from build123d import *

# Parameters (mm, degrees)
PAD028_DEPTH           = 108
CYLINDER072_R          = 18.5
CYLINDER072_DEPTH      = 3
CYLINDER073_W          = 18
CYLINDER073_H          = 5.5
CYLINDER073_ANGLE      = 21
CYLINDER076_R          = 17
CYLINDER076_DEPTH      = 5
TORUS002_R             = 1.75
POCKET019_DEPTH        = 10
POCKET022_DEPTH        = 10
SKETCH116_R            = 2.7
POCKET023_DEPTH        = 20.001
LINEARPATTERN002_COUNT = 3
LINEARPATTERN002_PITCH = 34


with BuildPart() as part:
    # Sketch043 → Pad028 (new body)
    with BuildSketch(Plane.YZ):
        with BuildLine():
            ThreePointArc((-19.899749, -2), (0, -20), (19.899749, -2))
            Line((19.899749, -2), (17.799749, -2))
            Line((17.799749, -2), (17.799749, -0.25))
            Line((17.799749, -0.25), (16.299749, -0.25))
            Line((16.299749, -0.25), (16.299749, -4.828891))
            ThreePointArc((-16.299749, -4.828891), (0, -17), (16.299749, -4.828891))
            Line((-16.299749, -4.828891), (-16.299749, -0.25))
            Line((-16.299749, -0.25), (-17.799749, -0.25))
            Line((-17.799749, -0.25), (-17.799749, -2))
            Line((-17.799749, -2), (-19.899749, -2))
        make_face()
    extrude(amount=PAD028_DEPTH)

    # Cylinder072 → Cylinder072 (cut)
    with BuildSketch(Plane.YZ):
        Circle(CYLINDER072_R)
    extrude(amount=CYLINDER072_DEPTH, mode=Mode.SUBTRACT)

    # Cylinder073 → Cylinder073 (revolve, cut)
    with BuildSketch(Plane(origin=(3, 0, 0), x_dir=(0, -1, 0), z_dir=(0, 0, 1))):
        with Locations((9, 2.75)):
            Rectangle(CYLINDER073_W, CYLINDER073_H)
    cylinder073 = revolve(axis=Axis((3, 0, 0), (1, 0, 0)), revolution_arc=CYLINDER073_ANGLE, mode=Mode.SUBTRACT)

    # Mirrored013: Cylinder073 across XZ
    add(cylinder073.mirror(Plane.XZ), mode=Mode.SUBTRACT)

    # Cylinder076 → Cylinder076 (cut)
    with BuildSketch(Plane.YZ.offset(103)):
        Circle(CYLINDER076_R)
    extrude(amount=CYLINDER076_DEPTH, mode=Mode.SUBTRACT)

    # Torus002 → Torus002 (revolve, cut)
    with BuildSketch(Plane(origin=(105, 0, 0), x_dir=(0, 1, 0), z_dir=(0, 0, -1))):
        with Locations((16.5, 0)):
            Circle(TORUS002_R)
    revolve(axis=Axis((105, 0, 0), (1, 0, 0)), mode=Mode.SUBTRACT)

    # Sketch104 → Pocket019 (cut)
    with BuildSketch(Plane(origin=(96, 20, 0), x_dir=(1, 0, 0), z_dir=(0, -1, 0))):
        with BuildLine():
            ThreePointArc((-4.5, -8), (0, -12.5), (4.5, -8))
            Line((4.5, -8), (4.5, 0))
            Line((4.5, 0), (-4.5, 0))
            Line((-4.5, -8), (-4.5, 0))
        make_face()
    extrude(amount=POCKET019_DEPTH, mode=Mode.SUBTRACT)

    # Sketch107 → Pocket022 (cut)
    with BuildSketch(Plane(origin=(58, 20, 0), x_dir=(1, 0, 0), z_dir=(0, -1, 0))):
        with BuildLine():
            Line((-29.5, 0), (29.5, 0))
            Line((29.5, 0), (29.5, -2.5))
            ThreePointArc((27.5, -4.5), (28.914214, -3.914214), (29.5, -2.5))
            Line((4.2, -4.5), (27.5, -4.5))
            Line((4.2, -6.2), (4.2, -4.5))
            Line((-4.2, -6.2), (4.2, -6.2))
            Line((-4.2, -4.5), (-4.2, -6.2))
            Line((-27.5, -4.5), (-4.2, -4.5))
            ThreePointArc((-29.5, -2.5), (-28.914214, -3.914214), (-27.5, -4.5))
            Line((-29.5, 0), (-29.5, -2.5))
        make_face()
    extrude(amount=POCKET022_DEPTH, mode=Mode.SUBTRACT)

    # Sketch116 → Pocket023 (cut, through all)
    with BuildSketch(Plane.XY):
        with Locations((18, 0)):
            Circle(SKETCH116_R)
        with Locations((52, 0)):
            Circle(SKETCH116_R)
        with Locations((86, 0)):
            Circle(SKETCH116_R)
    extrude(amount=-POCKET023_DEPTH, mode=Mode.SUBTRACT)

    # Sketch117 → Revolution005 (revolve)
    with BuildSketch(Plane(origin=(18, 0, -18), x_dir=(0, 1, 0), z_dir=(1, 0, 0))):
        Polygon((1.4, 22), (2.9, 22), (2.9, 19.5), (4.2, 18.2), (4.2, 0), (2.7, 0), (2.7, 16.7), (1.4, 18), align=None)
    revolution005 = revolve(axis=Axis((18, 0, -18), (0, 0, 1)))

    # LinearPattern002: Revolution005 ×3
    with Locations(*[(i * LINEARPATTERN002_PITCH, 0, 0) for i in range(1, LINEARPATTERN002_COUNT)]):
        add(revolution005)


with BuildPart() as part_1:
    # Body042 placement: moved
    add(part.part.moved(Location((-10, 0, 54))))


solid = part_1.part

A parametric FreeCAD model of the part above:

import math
import FreeCAD as App
import Part
import Sketcher
from FreeCAD import Vector
Q = App.Units.Quantity

doc = App.newDocument("Part")
body = doc.addObject("PartDesign::Body", "Body")

sketch1 = body.newObject("Sketcher::SketchObject", "Sketch")
sketch1.AttachmentSupport = (doc.getObject("YZ_Plane"), [""])
sketch1.MapMode = "FlatFace"
sketch1.addGeometry([
    Part.ArcOfCircle(Part.Circle(Vector(0, 0, 0), Vector(0, 0, 1), 20), math.radians(-174), math.radians(-6)),
    Part.LineSegment(Vector(19.9, -2, 0), Vector(17.8, -2, 0)),
    Part.LineSegment(Vector(17.8, -2, 0), Vector(17.8, -0.2, 0)),
    Part.LineSegment(Vector(17.8, -0.2, 0), Vector(16.3, -0.2, 0)),
    Part.LineSegment(Vector(16.3, -0.2, 0), Vector(16.3, -4.8, 0)),
    Part.ArcOfCircle(Part.Circle(Vector(0, 0, 0), Vector(0, 0, 1), 17), math.radians(-163), math.radians(-17)),
    Part.LineSegment(Vector(-16.3, -4.8, 0), Vector(-16.3, -0.2, 0)),
    Part.LineSegment(Vector(-16.3, -0.2, 0), Vector(-17.8, -0.2, 0)),
    Part.LineSegment(Vector(-17.8, -0.2, 0), Vector(-17.8, -2, 0)),
    Part.LineSegment(Vector(-17.8, -2, 0), Vector(-19.9, -2, 0)),
], False)
sketch1.addConstraint([
    Sketcher.Constraint("Coincident", 0, 2, 1, 1),
    Sketcher.Constraint("Coincident", 1, 2, 2, 1),
    Sketcher.Constraint("Coincident", 2, 2, 3, 1),
    Sketcher.Constraint("Coincident", 3, 2, 4, 1),
    Sketcher.Constraint("Coincident", 4, 2, 5, 2),
    Sketcher.Constraint("Coincident", 5, 1, 6, 1),
    Sketcher.Constraint("Coincident", 6, 2, 7, 1),
    Sketcher.Constraint("Coincident", 7, 2, 8, 1),
    Sketcher.Constraint("Coincident", 8, 2, 9, 1),
    Sketcher.Constraint("Coincident", 9, 2, 0, 1),
    Sketcher.Constraint("Horizontal", 1),
    Sketcher.Constraint("Vertical", 2),
    Sketcher.Constraint("Horizontal", 3),
    Sketcher.Constraint("Vertical", 4),
    Sketcher.Constraint("Vertical", 6),
    Sketcher.Constraint("Horizontal", 7),
    Sketcher.Constraint("Vertical", 8),
    Sketcher.Constraint("Horizontal", 9),
    Sketcher.Constraint("Coincident", 0, 3, -1, 1),
    Sketcher.Constraint("Coincident", 5, 3, -1, 1),
    Sketcher.Constraint("Symmetric", 3, 2, 6, 2, -2),
    Sketcher.Constraint("Symmetric", 1, 2, 8, 2, -2),
    Sketcher.Constraint("Radius", 0, Q("20 mm")),
    Sketcher.Constraint("Radius", 5, Q("17 mm")),
    Sketcher.Constraint("DistanceX", 1, 2, 1, 1, Q("2.1 mm")),
    Sketcher.Constraint("DistanceX", 3, 2, 3, 1, Q("1.5 mm")),
    Sketcher.Constraint("DistanceY", 0, 2, -1, 1, Q("2 mm")),
    Sketcher.Constraint("DistanceY", 2, 1, 2, 2, Q("1.75 mm")),
])
pad1 = body.newObject("PartDesign::Pad", "Pad")
pad1.Profile = sketch1
pad1.Length = 108

sketch2 = body.newObject("Sketcher::SketchObject", "Sketch001")
sketch2.AttachmentSupport = (doc.getObject("YZ_Plane"), [""])
sketch2.MapMode = "FlatFace"
sketch2.addGeometry(Part.Circle(Vector(0, 0, 0), Vector(0, 0, 1), 18), False)
sketch2.addConstraint([
    Sketcher.Constraint("Coincident", 0, 3, -1, 1),
    Sketcher.Constraint("Diameter", 0, Q("37 mm")),
])
pocket1 = body.newObject("PartDesign::Pocket", "Pocket")
pocket1.Profile = sketch2
pocket1.Length = 3
pocket1.Reversed = True

sketch3 = body.newObject("Sketcher::SketchObject", "Sketch002")
sketch3.AttachmentSupport = (doc.getObject("XY_Plane"), [""])
sketch3.MapMode = "FlatFace"
sketch3.addGeometry([
    Part.LineSegment(Vector(8, 0, 0), Vector(3, 0, 0)),
    Part.LineSegment(Vector(3, 0, 0), Vector(3, -18, 0)),
    Part.LineSegment(Vector(3, -18, 0), Vector(8, -18, 0)),
    Part.LineSegment(Vector(8, -18, 0), Vector(8, 0, 0)),
], False)
sketch3.addConstraint([
    Sketcher.Constraint("Coincident", 0, 2, 1, 1),
    Sketcher.Constraint("Coincident", 1, 2, 2, 1),
    Sketcher.Constraint("Coincident", 2, 2, 3, 1),
    Sketcher.Constraint("Coincident", 3, 2, 0, 1),
    Sketcher.Constraint("Horizontal", 0),
    Sketcher.Constraint("Vertical", 1),
    Sketcher.Constraint("Horizontal", 2),
    Sketcher.Constraint("Vertical", 3),
    Sketcher.Constraint("PointOnObject", 0, 2, -1),
    Sketcher.Constraint("DistanceY", 1, 2, 1, 1, Q("18 mm")),
    Sketcher.Constraint("DistanceX", 0, 2, 0, 1, Q("5.5 mm")),
    Sketcher.Constraint("DistanceX", -1, 1, 0, 2, Q("3 mm")),
])
groove = body.newObject("PartDesign::Groove", "Groove")
groove.Profile = sketch3
groove.ReferenceAxis = (sketch3, ["H_Axis"])
groove.Angle = 21
doc.recompute()

mirrored = body.newObject("PartDesign::Mirrored", "Mirrored")
mirrored.Originals = [groove]
mirrored.MirrorPlane = (doc.getObject("XZ_Plane"), [""])
body.Tip = mirrored

sketch4 = body.newObject("Sketcher::SketchObject", "Sketch003")
sketch4.AttachmentSupport = (doc.getObject("YZ_Plane"), [""])
sketch4.MapMode = "FlatFace"
sketch4.AttachmentOffset = App.Placement(Vector(0, 0, 103), App.Rotation())
sketch4.addGeometry(Part.Circle(Vector(0, 0, 0), Vector(0, 0, 1), 17), False)
sketch4.addConstraint([
    Sketcher.Constraint("Coincident", 0, 3, -1, 1),
    Sketcher.Constraint("Diameter", 0, Q("34 mm")),
])
pocket2 = body.newObject("PartDesign::Pocket", "Pocket001")
pocket2.Profile = sketch4
pocket2.Length = 5
pocket2.Reversed = True

sketch5 = body.newObject("Sketcher::SketchObject", "Sketch004")
sketch5.AttachmentSupport = (doc.getObject("XY_Plane"), [""])
sketch5.MapMode = "FlatFace"
sketch5.addGeometry(Part.Circle(Vector(105, 16.5, 0), Vector(0, 0, 1), 1.8), False)
sketch5.addConstraint([
    Sketcher.Constraint("Diameter", 0, Q("3.5 mm")),
    Sketcher.Constraint("DistanceX", -1, 1, 0, 3, Q("105 mm")),
    Sketcher.Constraint("DistanceY", -1, 1, 0, 3, Q("16.5 mm")),
])
groove2 = body.newObject("PartDesign::Groove", "Groove001")
groove2.Profile = sketch5
groove2.ReferenceAxis = (sketch5, ["H_Axis"])
groove2.Angle = 360

sketch6 = body.newObject("Sketcher::SketchObject", "Sketch005")
sketch6.AttachmentSupport = (doc.getObject("XZ_Plane"), [""])
sketch6.MapMode = "FlatFace"
sketch6.AttachmentOffset = App.Placement(Vector(0, 0, -20), App.Rotation())
sketch6.addGeometry([
    Part.ArcOfCircle(Part.Circle(Vector(96, -8, 0), Vector(0, 0, 1), 4.5), math.radians(180), math.radians(360)),
    Part.LineSegment(Vector(100.5, -8, 0), Vector(100.5, 0, 0)),
    Part.LineSegment(Vector(100.5, 0, 0), Vector(91.5, 0, 0)),
    Part.LineSegment(Vector(91.5, 0, 0), Vector(91.5, -8, 0)),
], False)
sketch6.addConstraint([
    Sketcher.Constraint("Tangent", 0, 2, 1, 1),
    Sketcher.Constraint("Coincident", 1, 2, 2, 1),
    Sketcher.Constraint("Coincident", 2, 2, 3, 1),
    Sketcher.Constraint("Tangent", 3, 2, 0, 1),
    Sketcher.Constraint("Vertical", 1),
    Sketcher.Constraint("Horizontal", 2),
    Sketcher.Constraint("Vertical", 3),
    Sketcher.Constraint("PointOnObject", 1, 2, -1),
    Sketcher.Constraint("Radius", 0, Q("4.5 mm")),
    Sketcher.Constraint("DistanceY", 1, 1, 1, 2, Q("8 mm")),
    Sketcher.Constraint("DistanceX", -1, 1, 0, 3, Q("96 mm")),
])
pocket3 = body.newObject("PartDesign::Pocket", "Pocket002")
pocket3.Profile = sketch6
pocket3.Length = 10
pocket3.Reversed = True

sketch7 = body.newObject("Sketcher::SketchObject", "Sketch006")
sketch7.AttachmentSupport = (doc.getObject("XZ_Plane"), [""])
sketch7.MapMode = "FlatFace"
sketch7.AttachmentOffset = App.Placement(Vector(0, 0, -20), App.Rotation())
sketch7.addGeometry([
    Part.LineSegment(Vector(87.5, 0, 0), Vector(28.5, 0, 0)),
    Part.LineSegment(Vector(28.5, 0, 0), Vector(28.5, -2.5, 0)),
    Part.ArcOfCircle(Part.Circle(Vector(30.5, -2.5, 0), Vector(0, 0, 1), 2), math.radians(180), math.radians(270)),
    Part.LineSegment(Vector(30.5, -4.5, 0), Vector(53.8, -4.5, 0)),
    Part.LineSegment(Vector(53.8, -4.5, 0), Vector(53.8, -6.2, 0)),
    Part.LineSegment(Vector(53.8, -6.2, 0), Vector(62.2, -6.2, 0)),
    Part.LineSegment(Vector(62.2, -6.2, 0), Vector(62.2, -4.5, 0)),
    Part.LineSegment(Vector(62.2, -4.5, 0), Vector(85.5, -4.5, 0)),
    Part.ArcOfCircle(Part.Circle(Vector(85.5, -2.5, 0), Vector(0, 0, 1), 2), math.radians(-90), math.radians(0)),
    Part.LineSegment(Vector(87.5, -2.5, 0), Vector(87.5, 0, 0)),
], False)
sketch7.addConstraint([
    Sketcher.Constraint("Coincident", 0, 2, 1, 1),
    Sketcher.Constraint("Tangent", 1, 2, 2, 1),
    Sketcher.Constraint("Tangent", 2, 2, 3, 1),
    Sketcher.Constraint("Coincident", 3, 2, 4, 1),
    Sketcher.Constraint("Coincident", 4, 2, 5, 1),
    Sketcher.Constraint("Coincident", 5, 2, 6, 1),
    Sketcher.Constraint("Coincident", 6, 2, 7, 1),
    Sketcher.Constraint("Tangent", 7, 2, 8, 1),
    Sketcher.Constraint("Tangent", 8, 2, 9, 1),
    Sketcher.Constraint("Coincident", 9, 2, 0, 1),
    Sketcher.Constraint("Horizontal", 0),
    Sketcher.Constraint("Vertical", 1),
    Sketcher.Constraint("Horizontal", 3),
    Sketcher.Constraint("Vertical", 4),
    Sketcher.Constraint("Horizontal", 5),
    Sketcher.Constraint("Vertical", 6),
    Sketcher.Constraint("Horizontal", 7),
    Sketcher.Constraint("Vertical", 9),
    Sketcher.Constraint("Equal", 2, 8),
    Sketcher.Constraint("PointOnObject", 0, 2, -1),
    Sketcher.Constraint("Horizontal", 2, 3, 8, 3),
    Sketcher.Constraint("Equal", 3, 7),
    Sketcher.Constraint("Radius", 2, Q("1.999999 mm")),
    Sketcher.Constraint("DistanceX", 0, 2, 0, 1, Q("59 mm")),
    Sketcher.Constraint("DistanceX", 3, 1, 3, 2, Q("23.3 mm")),
    Sketcher.Constraint("DistanceY", 1, 2, 1, 1, Q("2.5 mm")),
    Sketcher.Constraint("DistanceY", 4, 2, 4, 1, Q("1.7 mm")),
    Sketcher.Constraint("DistanceX", -1, 1, 2, 3, Q("30.499999 mm")),
])
pocket4 = body.newObject("PartDesign::Pocket", "Pocket003")
pocket4.Profile = sketch7
pocket4.Length = 10
pocket4.Reversed = True

sketch8 = body.newObject("Sketcher::SketchObject", "Sketch007")
sketch8.AttachmentSupport = (doc.getObject("XY_Plane"), [""])
sketch8.MapMode = "FlatFace"
sketch8.addGeometry([
    Part.Circle(Vector(18, 0, 0), Vector(0, 0, 1), 2.7),
    Part.Circle(Vector(52, 0, 0), Vector(0, 0, 1), 2.7),
    Part.Circle(Vector(86, 0, 0), Vector(0, 0, 1), 2.7),
], False)
sketch8.addConstraint([
    Sketcher.Constraint("Equal", 0, 1),
    Sketcher.Constraint("Equal", 1, 2),
    Sketcher.Constraint("PointOnObject", 0, 3, -1),
    Sketcher.Constraint("PointOnObject", 1, 3, -1),
    Sketcher.Constraint("PointOnObject", 2, 3, -1),
    Sketcher.Constraint("Diameter", 0, Q("5.4 mm")),
    Sketcher.Constraint("DistanceX", -1, 1, 0, 3, Q("18 mm")),
    Sketcher.Constraint("DistanceX", -1, 1, 1, 3, Q("52 mm")),
    Sketcher.Constraint("DistanceX", -1, 1, 2, 3, Q("86 mm")),
])
pocket5 = body.newObject("PartDesign::Pocket", "Pocket004")
pocket5.Profile = sketch8
pocket5.Type = "ThroughAll"

sketch9 = body.newObject("Sketcher::SketchObject", "Sketch008")
sketch9.AttachmentSupport = (doc.getObject("YZ_Plane"), [""])
sketch9.MapMode = "FlatFace"
sketch9.AttachmentOffset = App.Placement(Vector(0, 0, 18), App.Rotation())
sketch9.addGeometry([
    Part.LineSegment(Vector(2.9, 4, 0), Vector(1.4, 4, 0)),
    Part.LineSegment(Vector(1.4, 4, 0), Vector(1.4, 0, 0)),
    Part.LineSegment(Vector(1.4, 0, 0), Vector(2.7, -1.3, 0)),
    Part.LineSegment(Vector(2.7, -1.3, 0), Vector(2.7, -18, 0)),
    Part.LineSegment(Vector(2.7, -18, 0), Vector(4.2, -18, 0)),
    Part.LineSegment(Vector(4.2, -18, 0), Vector(4.2, 0.2, 0)),
    Part.LineSegment(Vector(4.2, 0.2, 0), Vector(2.9, 1.5, 0)),
    Part.LineSegment(Vector(2.9, 1.5, 0), Vector(2.9, 4, 0)),
], False)
sketch9.addConstraint([
    Sketcher.Constraint("Coincident", 0, 2, 1, 1),
    Sketcher.Constraint("Coincident", 1, 2, 2, 1),
    Sketcher.Constraint("Coincident", 2, 2, 3, 1),
    Sketcher.Constraint("Coincident", 3, 2, 4, 1),
    Sketcher.Constraint("Coincident", 4, 2, 5, 1),
    Sketcher.Constraint("Coincident", 5, 2, 6, 1),
    Sketcher.Constraint("Coincident", 6, 2, 7, 1),
    Sketcher.Constraint("Coincident", 7, 2, 0, 1),
    Sketcher.Constraint("Horizontal", 0),
    Sketcher.Constraint("Vertical", 1),
    Sketcher.Constraint("Vertical", 3),
    Sketcher.Constraint("Horizontal", 4),
    Sketcher.Constraint("Vertical", 5),
    Sketcher.Constraint("Vertical", 7),
    Sketcher.Constraint("PointOnObject", 1, 2, -1),
    Sketcher.Constraint("Parallel", 2, 6),
    Sketcher.Constraint("Equal", 0, 4),
    Sketcher.Constraint("DistanceY", 1, 2, 1, 1, Q("4 mm")),
    Sketcher.Constraint("Angle", 2, Q("-45 deg")),
    Sketcher.Constraint("DistanceX", 0, 2, 0, 1, Q("1.5 mm")),
    Sketcher.Constraint("DistanceY", 3, 2, 3, 1, Q("16.7 mm")),
    Sketcher.Constraint("DistanceY", 5, 1, 5, 2, Q("18.2 mm")),
    Sketcher.Constraint("DistanceY", 3, 2, -1, 1, Q("18 mm")),
    Sketcher.Constraint("DistanceX", -1, 1, 0, 2, Q("1.4 mm")),
])
revolution = body.newObject("PartDesign::Revolution", "Revolution")
revolution.Profile = sketch9
revolution.ReferenceAxis = (sketch9, ["V_Axis"])
revolution.Angle = 360
doc.recompute()

linearpattern = body.newObject("PartDesign::LinearPattern", "LinearPattern")
linearpattern.Originals = [revolution]
linearpattern.Direction = (doc.getObject("X_Axis"), [""])
linearpattern.Mode = "offset"
linearpattern.Offset = 34
linearpattern.Occurrences = 3
body.Tip = linearpattern
body2 = doc.addObject("PartDesign::Body", "Body001")
doc.recompute()

body.Placement = App.Placement(Vector(-10, 0, 54), App.Rotation(Vector(0, 0, 1), 0))
boolean = body2.newObject("PartDesign::Boolean", "Boolean")
boolean.Type = "Fuse"
boolean.addObjects([body])

doc.recompute()
